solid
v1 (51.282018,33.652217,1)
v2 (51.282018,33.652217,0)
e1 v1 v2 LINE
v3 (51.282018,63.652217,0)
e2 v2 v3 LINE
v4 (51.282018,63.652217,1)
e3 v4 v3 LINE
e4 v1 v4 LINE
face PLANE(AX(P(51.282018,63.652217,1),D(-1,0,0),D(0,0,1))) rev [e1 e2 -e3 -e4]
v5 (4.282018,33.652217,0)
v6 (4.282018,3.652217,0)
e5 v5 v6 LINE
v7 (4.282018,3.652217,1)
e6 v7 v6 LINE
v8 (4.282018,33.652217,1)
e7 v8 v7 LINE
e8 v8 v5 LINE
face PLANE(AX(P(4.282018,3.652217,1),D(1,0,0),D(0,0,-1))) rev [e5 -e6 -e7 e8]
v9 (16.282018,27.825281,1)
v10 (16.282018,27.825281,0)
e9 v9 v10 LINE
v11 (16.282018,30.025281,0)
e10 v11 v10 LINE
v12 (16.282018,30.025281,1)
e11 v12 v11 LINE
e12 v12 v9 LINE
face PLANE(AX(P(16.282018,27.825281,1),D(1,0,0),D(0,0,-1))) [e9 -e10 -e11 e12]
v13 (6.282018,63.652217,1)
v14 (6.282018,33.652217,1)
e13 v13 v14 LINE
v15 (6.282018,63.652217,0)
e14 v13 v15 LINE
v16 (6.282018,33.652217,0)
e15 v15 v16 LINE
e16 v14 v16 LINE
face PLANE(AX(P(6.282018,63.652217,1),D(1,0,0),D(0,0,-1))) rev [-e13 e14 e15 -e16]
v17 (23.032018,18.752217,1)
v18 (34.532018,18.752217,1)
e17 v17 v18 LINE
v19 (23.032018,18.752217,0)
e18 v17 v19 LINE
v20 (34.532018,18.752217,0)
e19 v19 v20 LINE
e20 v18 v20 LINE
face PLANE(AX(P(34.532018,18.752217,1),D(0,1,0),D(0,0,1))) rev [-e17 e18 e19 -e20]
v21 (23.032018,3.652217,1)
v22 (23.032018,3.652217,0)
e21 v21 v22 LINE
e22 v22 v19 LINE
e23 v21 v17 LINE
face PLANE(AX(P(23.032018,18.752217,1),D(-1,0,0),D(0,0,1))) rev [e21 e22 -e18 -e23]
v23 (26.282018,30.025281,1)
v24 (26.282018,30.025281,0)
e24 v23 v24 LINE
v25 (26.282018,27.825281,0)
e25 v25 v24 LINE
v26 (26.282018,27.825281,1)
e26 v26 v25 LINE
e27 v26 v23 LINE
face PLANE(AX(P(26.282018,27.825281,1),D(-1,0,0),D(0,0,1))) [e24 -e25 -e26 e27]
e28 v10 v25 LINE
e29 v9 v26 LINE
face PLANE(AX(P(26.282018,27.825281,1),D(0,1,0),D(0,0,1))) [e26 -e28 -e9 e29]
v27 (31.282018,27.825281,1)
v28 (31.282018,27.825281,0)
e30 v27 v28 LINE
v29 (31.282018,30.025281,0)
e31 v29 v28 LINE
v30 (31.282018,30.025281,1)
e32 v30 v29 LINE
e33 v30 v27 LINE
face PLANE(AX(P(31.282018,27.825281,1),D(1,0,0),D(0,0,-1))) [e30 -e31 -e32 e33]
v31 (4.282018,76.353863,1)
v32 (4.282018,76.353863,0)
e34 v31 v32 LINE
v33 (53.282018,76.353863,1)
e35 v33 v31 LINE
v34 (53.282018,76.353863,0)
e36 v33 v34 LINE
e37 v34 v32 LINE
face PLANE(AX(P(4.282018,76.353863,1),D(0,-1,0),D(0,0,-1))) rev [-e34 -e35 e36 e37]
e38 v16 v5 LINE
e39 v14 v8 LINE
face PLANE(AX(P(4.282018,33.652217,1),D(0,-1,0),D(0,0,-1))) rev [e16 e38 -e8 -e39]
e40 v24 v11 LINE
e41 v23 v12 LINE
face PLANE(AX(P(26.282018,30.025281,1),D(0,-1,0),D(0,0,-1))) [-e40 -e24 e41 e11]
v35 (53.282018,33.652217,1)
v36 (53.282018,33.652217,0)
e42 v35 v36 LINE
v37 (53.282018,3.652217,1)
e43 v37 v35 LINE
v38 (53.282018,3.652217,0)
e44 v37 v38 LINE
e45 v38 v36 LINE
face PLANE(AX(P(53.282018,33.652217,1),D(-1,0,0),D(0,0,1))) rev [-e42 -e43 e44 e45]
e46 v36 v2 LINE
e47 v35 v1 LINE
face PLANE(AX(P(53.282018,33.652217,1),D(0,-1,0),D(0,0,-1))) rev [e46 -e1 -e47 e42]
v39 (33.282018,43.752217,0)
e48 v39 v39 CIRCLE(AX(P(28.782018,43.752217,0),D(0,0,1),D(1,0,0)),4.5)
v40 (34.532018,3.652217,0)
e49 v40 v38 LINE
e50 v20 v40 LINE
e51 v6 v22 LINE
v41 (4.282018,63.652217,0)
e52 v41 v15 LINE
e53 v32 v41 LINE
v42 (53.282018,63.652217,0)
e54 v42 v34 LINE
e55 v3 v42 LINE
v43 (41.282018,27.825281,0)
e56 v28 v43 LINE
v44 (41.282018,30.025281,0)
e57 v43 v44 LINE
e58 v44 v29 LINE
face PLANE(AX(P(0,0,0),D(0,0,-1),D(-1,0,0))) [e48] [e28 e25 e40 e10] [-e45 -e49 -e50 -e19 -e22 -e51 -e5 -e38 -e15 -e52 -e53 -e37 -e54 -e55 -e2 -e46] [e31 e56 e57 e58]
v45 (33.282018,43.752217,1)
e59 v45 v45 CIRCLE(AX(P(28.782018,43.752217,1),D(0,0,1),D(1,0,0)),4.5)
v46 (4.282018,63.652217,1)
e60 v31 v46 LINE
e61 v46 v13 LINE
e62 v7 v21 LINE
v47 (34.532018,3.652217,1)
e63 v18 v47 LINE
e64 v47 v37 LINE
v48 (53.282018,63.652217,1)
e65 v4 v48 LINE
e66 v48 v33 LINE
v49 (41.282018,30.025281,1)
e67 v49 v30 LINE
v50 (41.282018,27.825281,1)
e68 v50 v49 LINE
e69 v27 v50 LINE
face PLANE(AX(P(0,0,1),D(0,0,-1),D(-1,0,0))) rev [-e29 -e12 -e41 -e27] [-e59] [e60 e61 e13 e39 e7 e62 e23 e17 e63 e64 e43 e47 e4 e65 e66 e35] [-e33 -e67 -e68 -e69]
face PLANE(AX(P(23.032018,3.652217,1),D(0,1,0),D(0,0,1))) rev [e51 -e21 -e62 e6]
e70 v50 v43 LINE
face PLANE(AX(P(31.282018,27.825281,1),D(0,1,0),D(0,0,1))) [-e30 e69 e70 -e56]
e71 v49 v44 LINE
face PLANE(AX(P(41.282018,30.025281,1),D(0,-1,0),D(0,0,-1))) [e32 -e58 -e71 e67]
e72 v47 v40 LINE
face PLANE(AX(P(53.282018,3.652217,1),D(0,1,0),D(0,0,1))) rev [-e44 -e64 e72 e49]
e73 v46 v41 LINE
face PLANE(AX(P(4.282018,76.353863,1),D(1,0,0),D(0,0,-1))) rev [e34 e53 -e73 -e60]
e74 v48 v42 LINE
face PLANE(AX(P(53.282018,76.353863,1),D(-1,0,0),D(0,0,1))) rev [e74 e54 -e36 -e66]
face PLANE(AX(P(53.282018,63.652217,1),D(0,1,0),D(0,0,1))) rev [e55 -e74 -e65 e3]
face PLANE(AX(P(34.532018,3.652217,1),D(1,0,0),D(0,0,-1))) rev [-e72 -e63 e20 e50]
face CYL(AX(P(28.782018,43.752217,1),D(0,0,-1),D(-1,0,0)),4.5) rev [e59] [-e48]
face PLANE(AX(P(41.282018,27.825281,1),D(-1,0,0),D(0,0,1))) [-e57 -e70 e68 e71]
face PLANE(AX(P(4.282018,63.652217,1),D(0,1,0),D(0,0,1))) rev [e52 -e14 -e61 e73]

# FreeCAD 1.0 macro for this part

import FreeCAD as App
import Part
import Sketcher

doc = App.newDocument("Part")
body = doc.addObject("PartDesign::Body", "Body")

# Sketch on XY plane
sketch1 = body.newObject("Sketcher::SketchObject", "Sketch")
sketch1.AttachmentSupport = (doc.getObject("XY_Plane"), [""])
sketch1.MapMode = "FlatFace"
sketch1.addGeometry(Part.LineSegment(App.Vector(4.282018, 33.652217, 0), App.Vector(4.282018, 3.652217, 0)), False)
sketch1.addGeometry(Part.LineSegment(App.Vector(4.282018, 3.652217, 0), App.Vector(23.032018, 3.652217, 0)), False)
sketch1.addGeometry(Part.LineSegment(App.Vector(23.032018, 3.652217, 0), App.Vector(23.032018, 18.752217, 0)), False)
sketch1.addGeometry(Part.LineSegment(App.Vector(23.032018, 18.752217, 0), App.Vector(34.532018, 18.752217, 0)), False)
sketch1.addGeometry(Part.LineSegment(App.Vector(34.532018, 18.752217, 0), App.Vector(34.532018, 3.652217, 0)), False)
sketch1.addGeometry(Part.LineSegment(App.Vector(34.532018, 3.652217, 0), App.Vector(53.282018, 3.652217, 0)), False)
sketch1.addGeometry(Part.LineSegment(App.Vector(53.282018, 3.652217, 0), App.Vector(53.282018, 33.652217, 0)), False)
sketch1.addGeometry(Part.LineSegment(App.Vector(53.282018, 33.652217, 0), App.Vector(51.282018, 33.652217, 0)), False)
sketch1.addGeometry(Part.LineSegment(App.Vector(51.282018, 33.652217, 0), App.Vector(51.282018, 63.652217, 0)), False)
sketch1.addGeometry(Part.LineSegment(App.Vector(51.282018, 63.652217, 0), App.Vector(53.282018, 63.652217, 0)), False)
sketch1.addGeometry(Part.LineSegment(App.Vector(53.282018, 63.652217, 0), App.Vector(53.282018, 76.353863, 0)), False)
sketch1.addGeometry(Part.LineSegment(App.Vector(53.282018, 76.353863, 0), App.Vector(4.282018, 76.353863, 0)), False)
sketch1.addGeometry(Part.LineSegment(App.Vector(4.282018, 76.353863, 0), App.Vector(4.282018, 63.652217, 0)), False)
sketch1.addGeometry(Part.LineSegment(App.Vector(4.282018, 63.652217, 0), App.Vector(6.282018, 63.652217, 0)), False)
sketch1.addGeometry(Part.LineSegment(App.Vector(6.282018, 63.652217, 0), App.Vector(6.282018, 33.652217, 0)), False)
sketch1.addGeometry(Part.LineSegment(App.Vector(6.282018, 33.652217, 0), App.Vector(4.282018, 33.652217, 0)), False)
sketch1.addGeometry(Part.LineSegment(App.Vector(31.282018, 27.825281, 0), App.Vector(31.282018, 30.025281, 0)), False)
sketch1.addGeometry(Part.LineSegment(App.Vector(31.282018, 30.025281, 0), App.Vector(41.282018, 30.025281, 0)), False)
sketch1.addGeometry(Part.LineSegment(App.Vector(41.282018, 30.025281, 0), App.Vector(41.282018, 27.825281, 0)), False)
sketch1.addGeometry(Part.LineSegment(App.Vector(41.282018, 27.825281, 0), App.Vector(31.282018, 27.825281, 0)), False)
sketch1.addGeometry(Part.LineSegment(App.Vector(16.282018, 27.825281, 0), App.Vector(16.282018, 30.025281, 0)), False)
sketch1.addGeometry(Part.LineSegment(App.Vector(16.282018, 30.025281, 0), App.Vector(26.282018, 30.025281, 0)), False)
sketch1.addGeometry(Part.LineSegment(App.Vector(26.282018, 30.025281, 0), App.Vector(26.282018, 27.825281, 0)), False)
sketch1.addGeometry(Part.LineSegment(App.Vector(26.282018, 27.825281, 0), App.Vector(16.282018, 27.825281, 0)), False)
sketch1.addGeometry(Part.Circle(App.Vector(28.782018, 43.752217, 0), App.Vector(0, 0, 1), 4.5), False)
sketch1.addConstraint(Sketcher.Constraint("Coincident", 0, 2, 1, 1))
sketch1.addConstraint(Sketcher.Constraint("Coincident", 1, 2, 2, 1))
sketch1.addConstraint(Sketcher.Constraint("Coincident", 2, 2, 3, 1))
sketch1.addConstraint(Sketcher.Constraint("Coincident", 3, 2, 4, 1))
sketch1.addConstraint(Sketcher.Constraint("Coincident", 4, 2, 5, 1))
sketch1.addConstraint(Sketcher.Constraint("Coincident", 5, 2, 6, 1))
sketch1.addConstraint(Sketcher.Constraint("Coincident", 6, 2, 7, 1))
sketch1.addConstraint(Sketcher.Constraint("Coincident", 7, 2, 8, 1))
sketch1.addConstraint(Sketcher.Constraint("Coincident", 8, 2, 9, 1))
sketch1.addConstraint(Sketcher.Constraint("Coincident", 9, 2, 10, 1))
sketch1.addConstraint(Sketcher.Constraint("Coincident", 10, 2, 11, 1))
sketch1.addConstraint(Sketcher.Constraint("Coincident", 11, 2, 12, 1))
sketch1.addConstraint(Sketcher.Constraint("Coincident", 12, 2, 13, 1))
sketch1.addConstraint(Sketcher.Constraint("Coincident", 13, 2, 14, 1))
sketch1.addConstraint(Sketcher.Constraint("Coincident", 14, 2, 15, 1))
sketch1.addConstraint(Sketcher.Constraint("Coincident", 15, 2, 0, 1))
sketch1.addConstraint(Sketcher.Constraint("Coincident", 16, 2, 17, 1))
sketch1.addConstraint(Sketcher.Constraint("Coincident", 17, 2, 18, 1))
sketch1.addConstraint(Sketcher.Constraint("Coincident", 18, 2, 19, 1))
sketch1.addConstraint(Sketcher.Constraint("Coincident", 19, 2, 16, 1))
sketch1.addConstraint(Sketcher.Constraint("Coincident", 20, 2, 21, 1))
sketch1.addConstraint(Sketcher.Constraint("Coincident", 21, 2, 22, 1))
sketch1.addConstraint(Sketcher.Constraint("Coincident", 22, 2, 23, 1))
sketch1.addConstraint(Sketcher.Constraint("Coincident", 23, 2, 20, 1))
sketch1.addConstraint(Sketcher.Constraint("Vertical", 0))
sketch1.addConstraint(Sketcher.Constraint("Horizontal", 1))
sketch1.addConstraint(Sketcher.Constraint("Vertical", 2))
sketch1.addConstraint(Sketcher.Constraint("Horizontal", 3))
sketch1.addConstraint(Sketcher.Constraint("Vertical", 4))
sketch1.addConstraint(Sketcher.Constraint("Horizontal", 5))
sketch1.addConstraint(Sketcher.Constraint("Vertical", 6))
sketch1.addConstraint(Sketcher.Constraint("Horizontal", 7))
sketch1.addConstraint(Sketcher.Constraint("Vertical", 8))
sketch1.addConstraint(Sketcher.Constraint("Horizontal", 9))
sketch1.addConstraint(Sketcher.Constraint("Vertical", 10))
sketch1.addConstraint(Sketcher.Constraint("Horizontal", 11))
sketch1.addConstraint(Sketcher.Constraint("Vertical", 12))
sketch1.addConstraint(Sketcher.Constraint("Horizontal", 13))
sketch1.addConstraint(Sketcher.Constraint("Vertical", 14))
sketch1.addConstraint(Sketcher.Constraint("Horizontal", 15))
sketch1.addConstraint(Sketcher.Constraint("Vertical", 16))
sketch1.addConstraint(Sketcher.Constraint("Horizontal", 17))
sketch1.addConstraint(Sketcher.Constraint("Vertical", 18))
sketch1.addConstraint(Sketcher.Constraint("Horizontal", 19))
sketch1.addConstraint(Sketcher.Constraint("Vertical", 20))
sketch1.addConstraint(Sketcher.Constraint("Horizontal", 21))
sketch1.addConstraint(Sketcher.Constraint("Vertical", 22))
sketch1.addConstraint(Sketcher.Constraint("Horizontal", 23))
sketch1.addConstraint(Sketcher.Constraint("Horizontal", 1, 2, 4, 2))
sketch1.addConstraint(Sketcher.Constraint("Horizontal", 9, 2, 12, 2))
sketch1.addConstraint(Sketcher.Constraint("Horizontal", 7, 2, 14, 2))
sketch1.addConstraint(Sketcher.Constraint("Horizontal", 17, 2, 20, 2))
sketch1.addConstraint(Sketcher.Constraint("Horizontal", 19, 2, 22, 2))
sketch1.addConstraint(Sketcher.Constraint("Vertical", 6, 2, 9, 2))
sketch1.addConstraint(Sketcher.Constraint("Vertical", 0, 2, 11, 2))
sketch1.addConstraint(Sketcher.Constraint("Equal", 1, 5))
sketch1.addConstraint(Sketcher.Constraint("Equal", 9, 13))
sketch1.addConstraint(Sketcher.Constraint("Equal", 19, 21))
sketch1.addConstraint(Sketcher.Constraint("Equal", 6, 8))
sketch1.addConstraint(Sketcher.Constraint("Diameter", 24, 9.0))
sketch1.addConstraint(Sketcher.Constraint("DistanceX", 7, 2, 7, 1, 2.0))
sketch1.addConstraint(Sketcher.Constraint("DistanceX", 11, 2, 11, 1, 49.0))
sketch1.addConstraint(Sketcher.Constraint("DistanceX", 17, 1, 17, 2, 10.0))
sketch1.addConstraint(Sketcher.Constraint("DistanceY", 0, 2, 0, 1, 30.0))
sketch1.addConstraint(Sketcher.Constraint("DistanceX", 3, 1, 3, 2, 11.5))
sketch1.addConstraint(Sketcher.Constraint("DistanceY", 2, 1, 2, 2, 15.1))
sketch1.addConstraint(Sketcher.Constraint("DistanceY", 16, 1, 16, 2, 2.2))
sketch1.addConstraint(Sketcher.Constraint("DistanceY", 2, 2, 24, 3, 25.0))
sketch1.addConstraint(Sketcher.Constraint("DistanceX", 16, 2, 7, 2, 20.0))
sketch1.addConstraint(Sketcher.Constraint("DistanceX", 14, 2, 20, 2, 10.0))
sketch1.addConstraint(Sketcher.Constraint("DistanceX", 0, 2, 24, 3, 24.5))
sketch1.addConstraint(Sketcher.Constraint("DistanceY", 10, 1, 10, 2, 12.701645))
sketch1.addConstraint(Sketcher.Constraint("DistanceX", -1, 1, 24, 3, 28.782018))
sketch1.addConstraint(Sketcher.Constraint("DistanceY", -1, 1, 16, 2, 30.025281))
sketch1.addConstraint(Sketcher.Constraint("DistanceY", -1, 1, 24, 3, 43.752217))
pad1 = body.newObject("PartDesign::Pad", "Pad")
pad1.Profile = sketch1
pad1.Length = 1

doc.recompute()
